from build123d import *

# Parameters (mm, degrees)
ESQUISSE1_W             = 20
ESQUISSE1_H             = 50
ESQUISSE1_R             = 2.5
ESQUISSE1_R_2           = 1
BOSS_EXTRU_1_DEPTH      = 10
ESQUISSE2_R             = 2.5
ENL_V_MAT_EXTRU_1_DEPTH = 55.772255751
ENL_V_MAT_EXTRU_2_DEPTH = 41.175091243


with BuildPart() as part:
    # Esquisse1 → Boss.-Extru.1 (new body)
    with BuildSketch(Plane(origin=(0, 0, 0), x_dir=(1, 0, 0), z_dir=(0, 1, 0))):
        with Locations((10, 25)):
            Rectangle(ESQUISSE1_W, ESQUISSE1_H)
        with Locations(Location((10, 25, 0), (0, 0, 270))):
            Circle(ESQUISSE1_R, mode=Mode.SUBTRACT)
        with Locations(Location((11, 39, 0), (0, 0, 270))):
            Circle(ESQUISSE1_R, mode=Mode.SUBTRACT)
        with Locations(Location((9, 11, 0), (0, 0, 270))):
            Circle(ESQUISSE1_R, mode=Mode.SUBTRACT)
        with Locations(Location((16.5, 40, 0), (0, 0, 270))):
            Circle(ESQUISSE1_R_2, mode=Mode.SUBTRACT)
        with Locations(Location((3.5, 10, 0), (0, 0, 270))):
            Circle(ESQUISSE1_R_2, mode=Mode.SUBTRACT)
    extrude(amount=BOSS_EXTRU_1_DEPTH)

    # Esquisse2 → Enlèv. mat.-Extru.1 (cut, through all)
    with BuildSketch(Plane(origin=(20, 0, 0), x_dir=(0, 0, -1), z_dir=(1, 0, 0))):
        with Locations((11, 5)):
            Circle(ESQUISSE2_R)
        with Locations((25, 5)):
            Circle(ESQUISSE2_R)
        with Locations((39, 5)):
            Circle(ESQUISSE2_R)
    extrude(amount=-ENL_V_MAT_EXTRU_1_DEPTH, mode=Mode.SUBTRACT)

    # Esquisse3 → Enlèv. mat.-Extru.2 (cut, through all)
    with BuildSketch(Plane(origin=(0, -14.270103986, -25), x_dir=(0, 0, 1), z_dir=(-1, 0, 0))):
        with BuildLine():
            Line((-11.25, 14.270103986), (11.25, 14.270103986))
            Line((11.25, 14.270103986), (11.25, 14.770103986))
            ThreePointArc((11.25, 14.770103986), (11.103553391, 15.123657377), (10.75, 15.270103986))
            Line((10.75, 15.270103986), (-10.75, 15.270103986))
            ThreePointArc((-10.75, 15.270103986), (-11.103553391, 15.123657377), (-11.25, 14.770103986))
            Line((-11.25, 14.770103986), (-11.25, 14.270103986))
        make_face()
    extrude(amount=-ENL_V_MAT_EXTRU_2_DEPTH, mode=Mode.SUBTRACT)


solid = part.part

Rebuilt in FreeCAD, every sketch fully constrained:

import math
import FreeCAD as App
import Part
import Sketcher

V = App.Vector
Q = App.Units.Quantity

doc = App.newDocument("Part")
body = doc.addObject("PartDesign::Body", "Body")

sketch1 = body.newObject("Sketcher::SketchObject", "Sketch")
sketch1.AttachmentSupport = (doc.getObject("XZ_Plane"), [""])
sketch1.MapMode = "FlatFace"
sketch1.addGeometry([
    Part.LineSegment(V(0, -50, 0), V(0, 0, 0)),
    Part.LineSegment(V(0, 0, 0), V(20, 0, 0)),
    Part.LineSegment(V(20, 0, 0), V(20, -50, 0)),
    Part.LineSegment(V(20, -50, 0), V(0, -50, 0)),
    Part.Circle(V(3.5, -10, 0), V(0, 0, 1), 1),
    Part.Circle(V(9, -11, 0), V(0, 0, 1), 2.5),
    Part.Circle(V(10, -25, 0), V(0, 0, 1), 2.5),
    Part.Circle(V(11, -39, 0), V(0, 0, 1), 2.5),
    Part.Circle(V(16.5, -40, 0), V(0, 0, 1), 1),
], False)
sketch1.addConstraint([
    Sketcher.Constraint("Coincident", 0, 2, 1, 1),
    Sketcher.Constraint("Coincident", 1, 2, 2, 1),
    Sketcher.Constraint("Coincident", 2, 2, 3, 1),
    Sketcher.Constraint("Coincident", 3, 2, 0, 1),
    Sketcher.Constraint("Vertical", 0),
    Sketcher.Constraint("Horizontal", 1),
    Sketcher.Constraint("Vertical", 2),
    Sketcher.Constraint("Horizontal", 3),
    Sketcher.Constraint("Coincident", 0, 2, -1, 1),
    Sketcher.Constraint("Equal", 5, 6),
    Sketcher.Constraint("Equal", 6, 7),
    Sketcher.Constraint("Equal", 4, 8),
    Sketcher.Constraint("Diameter", 4, Q("2 mm")),
    Sketcher.Constraint("Diameter", 5, Q("5 mm")),
    Sketcher.Constraint("DistanceX", 1, 1, 1, 2, Q("20 mm")),
    Sketcher.Constraint("DistanceY", 0, 1, 0, 2, Q("50 mm")),
    Sketcher.Constraint("DistanceY", 4, 3, -1, 1, Q("10 mm")),
    Sketcher.Constraint("DistanceX", -1, 1, 5, 3, Q("9 mm")),
    Sketcher.Constraint("DistanceY", 5, 3, -1, 1, Q("11 mm")),
    Sketcher.Constraint("DistanceX", -1, 1, 6, 3, Q("10 mm")),
    Sketcher.Constraint("DistanceY", 6, 3, -1, 1, Q("25 mm")),
    Sketcher.Constraint("DistanceX", -1, 1, 7, 3, Q("11 mm")),
    Sketcher.Constraint("DistanceY", 7, 3, -1, 1, Q("39 mm")),
    Sketcher.Constraint("DistanceY", 8, 3, -1, 1, Q("40 mm")),
    Sketcher.Constraint("DistanceX", 4, 3, 8, 3, Q("13 mm")),
    Sketcher.Constraint("DistanceX", -1, 1, 4, 3, Q("3.5 mm")),
])
pad1 = body.newObject("PartDesign::Pad", "Pad")
pad1.Profile = sketch1
pad1.Length = 10
pad1.Reversed = True

sketch2 = body.newObject("Sketcher::SketchObject", "Sketch001")
sketch2.AttachmentSupport = (doc.getObject("YZ_Plane"), [""])
sketch2.MapMode = "FlatFace"
sketch2.AttachmentOffset = App.Placement(V(0, 0, 20), App.Rotation())
sketch2.addGeometry([
    Part.Circle(V(5, -11, 0), V(0, 0, 1), 2.5),
    Part.Circle(V(5, -25, 0), V(0, 0, 1), 2.5),
    Part.Circle(V(5, -39, 0), V(0, 0, 1), 2.5),
], False)
sketch2.addConstraint([
    Sketcher.Constraint("Equal", 0, 1),
    Sketcher.Constraint("Equal", 1, 2),
    Sketcher.Constraint("Vertical", 0, 3, 1, 3),
    Sketcher.Constraint("Vertical", 1, 3, 2, 3),
    Sketcher.Constraint("Diameter", 0, Q("5 mm")),
    Sketcher.Constraint("DistanceX", -1, 1, 0, 3, Q("5 mm")),
    Sketcher.Constraint("DistanceY", 0, 3, -1, 1, Q("11 mm")),
    Sketcher.Constraint("DistanceY", 1, 3, -1, 1, Q("25 mm")),
    Sketcher.Constraint("DistanceY", 2, 3, -1, 1, Q("39 mm")),
])
pocket1 = body.newObject("PartDesign::Pocket", "Pocket")
pocket1.Profile = sketch2
pocket1.Type = "ThroughAll"

sketch3 = body.newObject("Sketcher::SketchObject", "Sketch002")
sketch3.AttachmentSupport = (doc.getObject("YZ_Plane"), [""])
sketch3.MapMode = "FlatFace"
sketch3.addGeometry([
    Part.LineSegment(V(0, -36.25, 0), V(0, -13.75, 0)),
    Part.LineSegment(V(0, -13.75, 0), V(0.5, -13.75, 0)),
    Part.ArcOfCircle(Part.Circle(V(0.5, -14.25, 0), V(0, 0, 1), 0.5), math.radians(0), math.radians(90)),
    Part.LineSegment(V(1, -14.25, 0), V(1, -35.75, 0)),
    Part.ArcOfCircle(Part.Circle(V(0.5, -35.75, 0), V(0, 0, 1), 0.5), math.radians(-90), math.radians(0)),
    Part.LineSegment(V(0.5, -36.25, 0), V(0, -36.25, 0)),
], False)
sketch3.addConstraint([
    Sketcher.Constraint("Coincident", 0, 2, 1, 1),
    Sketcher.Constraint("Tangent", 1, 2, 2, 2),
    Sketcher.Constraint("Tangent", 2, 1, 3, 1),
    Sketcher.Constraint("Tangent", 3, 2, 4, 2),
    Sketcher.Constraint("Tangent", 4, 1, 5, 1),
    Sketcher.Constraint("Coincident", 5, 2, 0, 1),
    Sketcher.Constraint("Vertical", 0),
    Sketcher.Constraint("Horizontal", 1),
    Sketcher.Constraint("Vertical", 3),
    Sketcher.Constraint("Horizontal", 5),
    Sketcher.Constraint("Equal", 2, 4),
    Sketcher.Constraint("PointOnObject", 0, 2, -2),
    Sketcher.Constraint("Radius", 2, Q("0.5 mm")),
    Sketcher.Constraint("DistanceX", 1, 1, 1, 2, Q("0.5 mm")),
    Sketcher.Constraint("DistanceY", 0, 1, 0, 2, Q("22.5 mm")),
    Sketcher.Constraint("DistanceY", 2, 3, -1, 1, Q("14.25 mm")),
])
pocket2 = body.newObject("PartDesign::Pocket", "Pocket001")
pocket2.Profile = sketch3
pocket2.Type = "ThroughAll"
pocket2.Reversed = True

doc.recompute()
